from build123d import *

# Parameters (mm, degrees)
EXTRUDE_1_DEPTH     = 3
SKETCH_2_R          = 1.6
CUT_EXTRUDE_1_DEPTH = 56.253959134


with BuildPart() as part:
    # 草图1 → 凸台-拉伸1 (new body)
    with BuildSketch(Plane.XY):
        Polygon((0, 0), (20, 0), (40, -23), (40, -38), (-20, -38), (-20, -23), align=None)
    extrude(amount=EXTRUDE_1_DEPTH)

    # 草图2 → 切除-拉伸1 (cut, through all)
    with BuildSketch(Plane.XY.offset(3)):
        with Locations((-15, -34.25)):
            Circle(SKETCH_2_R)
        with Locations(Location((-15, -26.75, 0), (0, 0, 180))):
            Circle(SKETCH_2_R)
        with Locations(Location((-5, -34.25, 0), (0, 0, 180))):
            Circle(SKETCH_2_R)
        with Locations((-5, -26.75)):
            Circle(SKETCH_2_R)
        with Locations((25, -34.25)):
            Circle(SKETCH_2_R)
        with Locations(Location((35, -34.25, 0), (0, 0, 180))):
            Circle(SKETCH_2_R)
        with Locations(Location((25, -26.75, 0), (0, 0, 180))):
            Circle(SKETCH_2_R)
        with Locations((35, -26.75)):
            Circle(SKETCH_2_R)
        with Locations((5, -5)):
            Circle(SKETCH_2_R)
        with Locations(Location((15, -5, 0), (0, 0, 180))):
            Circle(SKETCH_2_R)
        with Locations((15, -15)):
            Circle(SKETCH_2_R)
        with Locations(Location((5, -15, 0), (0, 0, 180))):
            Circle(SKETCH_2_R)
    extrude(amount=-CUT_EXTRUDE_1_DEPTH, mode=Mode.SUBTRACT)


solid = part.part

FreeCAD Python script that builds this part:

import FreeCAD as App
import Part
import Sketcher
from FreeCAD import Vector

doc = App.newDocument("Part")
body = doc.addObject("PartDesign::Body", "Body")

# Sketch on XY plane
sketch1 = body.newObject("Sketcher::SketchObject", "Sketch")
sketch1.AttachmentSupport = (doc.getObject("XY_Plane"), [""])
sketch1.MapMode = "FlatFace"
sketch1.addGeometry(Part.LineSegment(Vector(20, 0, 0), Vector(0, 0, 0)), False)
sketch1.addGeometry(Part.LineSegment(Vector(0, 0, 0), Vector(-20, -23, 0)), False)
sketch1.addGeometry(Part.LineSegment(Vector(-20, -23, 0), Vector(-20, -38, 0)), False)
sketch1.addGeometry(Part.LineSegment(Vector(-20, -38, 0), Vector(40, -38, 0)), False)
sketch1.addGeometry(Part.LineSegment(Vector(40, -38, 0), Vector(40, -23, 0)), False)
sketch1.addGeometry(Part.LineSegment(Vector(40, -23, 0), Vector(20, 0, 0)), False)
sketch1.addConstraint(Sketcher.Constraint("Coincident", 0, 2, 1, 1))
sketch1.addConstraint(Sketcher.Constraint("Coincident", 1, 2, 2, 1))
sketch1.addConstraint(Sketcher.Constraint("Coincident", 2, 2, 3, 1))
sketch1.addConstraint(Sketcher.Constraint("Coincident", 3, 2, 4, 1))
sketch1.addConstraint(Sketcher.Constraint("Coincident", 4, 2, 5, 1))
sketch1.addConstraint(Sketcher.Constraint("Coincident", 5, 2, 0, 1))
sketch1.addConstraint(Sketcher.Constraint("Horizontal", 0))
sketch1.addConstraint(Sketcher.Constraint("Vertical", 2))
sketch1.addConstraint(Sketcher.Constraint("Horizontal", 3))
sketch1.addConstraint(Sketcher.Constraint("Vertical", 4))
sketch1.addConstraint(Sketcher.Constraint("Coincident", 0, 2, -1, 1))
sketch1.addConstraint(Sketcher.Constraint("Horizontal", 1, 2, 4, 2))
sketch1.addConstraint(Sketcher.Constraint("Equal", 1, 5))
sketch1.addConstraint(Sketcher.Constraint("DistanceX", 0, 2, 0, 1, 20.0))
sketch1.addConstraint(Sketcher.Constraint("DistanceX", 3, 1, 3, 2, 60.0))
sketch1.addConstraint(Sketcher.Constraint("DistanceY", 2, 2, 2, 1, 15.0))
sketch1.addConstraint(Sketcher.Constraint("DistanceY", 1, 2, -1, 1, 23.0))
pad1 = body.newObject("PartDesign::Pad", "Pad")
pad1.Profile = sketch1
pad1.Length = 3

# Sketch on XY plane
sketch2 = body.newObject("Sketcher::SketchObject", "Sketch001")
sketch2.AttachmentSupport = (doc.getObject("XY_Plane"), [""])
sketch2.MapMode = "FlatFace"
sketch2.AttachmentOffset = App.Placement(Vector(0, 0, 3), App.Rotation())
sketch2.addGeometry(Part.Circle(Vector(-15, -34.2, 0), Vector(0, 0, 1), 1.6), False)
sketch2.addGeometry(Part.Circle(Vector(-15, -26.8, 0), Vector(0, 0, 1), 1.6), False)
sketch2.addGeometry(Part.Circle(Vector(-5, -34.2, 0), Vector(0, 0, 1), 1.6), False)
sketch2.addGeometry(Part.Circle(Vector(-5, -26.8, 0), Vector(0, 0, 1), 1.6), False)
sketch2.addGeometry(Part.Circle(Vector(25, -34.2, 0), Vector(0, 0, 1), 1.6), False)
sketch2.addGeometry(Part.Circle(Vector(35, -34.2, 0), Vector(0, 0, 1), 1.6), False)
sketch2.addGeometry(Part.Circle(Vector(25, -26.8, 0), Vector(0, 0, 1), 1.6), False)
sketch2.addGeometry(Part.Circle(Vector(35, -26.8, 0), Vector(0, 0, 1), 1.6), False)
sketch2.addGeometry(Part.Circle(Vector(5, -5, 0), Vector(0, 0, 1), 1.6), False)
sketch2.addGeometry(Part.Circle(Vector(15, -5, 0), Vector(0, 0, 1), 1.6), False)
sketch2.addGeometry(Part.Circle(Vector(15, -15, 0), Vector(0, 0, 1), 1.6), False)
sketch2.addGeometry(Part.Circle(Vector(5, -15, 0), Vector(0, 0, 1), 1.6), False)
sketch2.addConstraint(Sketcher.Constraint("Equal", 0, 1))
sketch2.addConstraint(Sketcher.Constraint("Equal", 1, 2))
sketch2.addConstraint(Sketcher.Constraint("Equal", 2, 3))
sketch2.addConstraint(Sketcher.Constraint("Equal", 3, 4))
sketch2.addConstraint(Sketcher.Constraint("Equal", 4, 5))
sketch2.addConstraint(Sketcher.Constraint("Equal", 5, 6))
sketch2.addConstraint(Sketcher.Constraint("Equal", 6, 7))
sketch2.addConstraint(Sketcher.Constraint("Equal", 7, 8))
sketch2.addConstraint(Sketcher.Constraint("Equal", 8, 9))
sketch2.addConstraint(Sketcher.Constraint("Equal", 9, 10))
sketch2.addConstraint(Sketcher.Constraint("Equal", 10, 11))
sketch2.addConstraint(Sketcher.Constraint("Horizontal", 0, 3, 2, 3))
sketch2.addConstraint(Sketcher.Constraint("Horizontal", 1, 3, 3, 3))
sketch2.addConstraint(Sketcher.Constraint("Horizontal", 2, 3, 4, 3))
sketch2.addConstraint(Sketcher.Constraint("Horizontal", 4, 3, 5, 3))
sketch2.addConstraint(Sketcher.Constraint("Horizontal", 3, 3, 6, 3))
sketch2.addConstraint(Sketcher.Constraint("Horizontal", 6, 3, 7, 3))
sketch2.addConstraint(Sketcher.Constraint("Horizontal", 8, 3, 9, 3))
sketch2.addConstraint(Sketcher.Constraint("Horizontal", 10, 3, 11, 3))
sketch2.addConstraint(Sketcher.Constraint("Vertical", 0, 3, 1, 3))
sketch2.addConstraint(Sketcher.Constraint("Vertical", 2, 3, 3, 3))
sketch2.addConstraint(Sketcher.Constraint("Vertical", 4, 3, 6, 3))
sketch2.addConstraint(Sketcher.Constraint("Vertical", 5, 3, 7, 3))
sketch2.addConstraint(Sketcher.Constraint("Vertical", 9, 3, 10, 3))
sketch2.addConstraint(Sketcher.Constraint("Vertical", 8, 3, 11, 3))
sketch2.addConstraint(Sketcher.Constraint("Diameter", 0, 3.2))
sketch2.addConstraint(Sketcher.Constraint("DistanceX", 0, 3, -1, 1, 15.0))
sketch2.addConstraint(Sketcher.Constraint("DistanceX", 2, 3, -1, 1, 5.0))
sketch2.addConstraint(Sketcher.Constraint("DistanceX", -1, 1, 4, 3, 25.0))
sketch2.addConstraint(Sketcher.Constraint("DistanceX", -1, 1, 5, 3, 35.0))
sketch2.addConstraint(Sketcher.Constraint("DistanceX", -1, 1, 8, 3, 5.0))
sketch2.addConstraint(Sketcher.Constraint("DistanceY", 8, 3, -1, 1, 5.0))
sketch2.addConstraint(Sketcher.Constraint("DistanceX", -1, 1, 9, 3, 15.0))
sketch2.addConstraint(Sketcher.Constraint("DistanceY", 10, 3, -1, 1, 15.0))
sketch2.addConstraint(Sketcher.Constraint("DistanceY", 0, 3, 1, 3, 7.5))
sketch2.addConstraint(Sketcher.Constraint("DistanceY", 0, 3, -1, 1, 34.25))
pocket1 = body.newObject("PartDesign::Pocket", "Pocket")
pocket1.Profile = sketch2
pocket1.Type = "ThroughAll"

doc.recompute()
